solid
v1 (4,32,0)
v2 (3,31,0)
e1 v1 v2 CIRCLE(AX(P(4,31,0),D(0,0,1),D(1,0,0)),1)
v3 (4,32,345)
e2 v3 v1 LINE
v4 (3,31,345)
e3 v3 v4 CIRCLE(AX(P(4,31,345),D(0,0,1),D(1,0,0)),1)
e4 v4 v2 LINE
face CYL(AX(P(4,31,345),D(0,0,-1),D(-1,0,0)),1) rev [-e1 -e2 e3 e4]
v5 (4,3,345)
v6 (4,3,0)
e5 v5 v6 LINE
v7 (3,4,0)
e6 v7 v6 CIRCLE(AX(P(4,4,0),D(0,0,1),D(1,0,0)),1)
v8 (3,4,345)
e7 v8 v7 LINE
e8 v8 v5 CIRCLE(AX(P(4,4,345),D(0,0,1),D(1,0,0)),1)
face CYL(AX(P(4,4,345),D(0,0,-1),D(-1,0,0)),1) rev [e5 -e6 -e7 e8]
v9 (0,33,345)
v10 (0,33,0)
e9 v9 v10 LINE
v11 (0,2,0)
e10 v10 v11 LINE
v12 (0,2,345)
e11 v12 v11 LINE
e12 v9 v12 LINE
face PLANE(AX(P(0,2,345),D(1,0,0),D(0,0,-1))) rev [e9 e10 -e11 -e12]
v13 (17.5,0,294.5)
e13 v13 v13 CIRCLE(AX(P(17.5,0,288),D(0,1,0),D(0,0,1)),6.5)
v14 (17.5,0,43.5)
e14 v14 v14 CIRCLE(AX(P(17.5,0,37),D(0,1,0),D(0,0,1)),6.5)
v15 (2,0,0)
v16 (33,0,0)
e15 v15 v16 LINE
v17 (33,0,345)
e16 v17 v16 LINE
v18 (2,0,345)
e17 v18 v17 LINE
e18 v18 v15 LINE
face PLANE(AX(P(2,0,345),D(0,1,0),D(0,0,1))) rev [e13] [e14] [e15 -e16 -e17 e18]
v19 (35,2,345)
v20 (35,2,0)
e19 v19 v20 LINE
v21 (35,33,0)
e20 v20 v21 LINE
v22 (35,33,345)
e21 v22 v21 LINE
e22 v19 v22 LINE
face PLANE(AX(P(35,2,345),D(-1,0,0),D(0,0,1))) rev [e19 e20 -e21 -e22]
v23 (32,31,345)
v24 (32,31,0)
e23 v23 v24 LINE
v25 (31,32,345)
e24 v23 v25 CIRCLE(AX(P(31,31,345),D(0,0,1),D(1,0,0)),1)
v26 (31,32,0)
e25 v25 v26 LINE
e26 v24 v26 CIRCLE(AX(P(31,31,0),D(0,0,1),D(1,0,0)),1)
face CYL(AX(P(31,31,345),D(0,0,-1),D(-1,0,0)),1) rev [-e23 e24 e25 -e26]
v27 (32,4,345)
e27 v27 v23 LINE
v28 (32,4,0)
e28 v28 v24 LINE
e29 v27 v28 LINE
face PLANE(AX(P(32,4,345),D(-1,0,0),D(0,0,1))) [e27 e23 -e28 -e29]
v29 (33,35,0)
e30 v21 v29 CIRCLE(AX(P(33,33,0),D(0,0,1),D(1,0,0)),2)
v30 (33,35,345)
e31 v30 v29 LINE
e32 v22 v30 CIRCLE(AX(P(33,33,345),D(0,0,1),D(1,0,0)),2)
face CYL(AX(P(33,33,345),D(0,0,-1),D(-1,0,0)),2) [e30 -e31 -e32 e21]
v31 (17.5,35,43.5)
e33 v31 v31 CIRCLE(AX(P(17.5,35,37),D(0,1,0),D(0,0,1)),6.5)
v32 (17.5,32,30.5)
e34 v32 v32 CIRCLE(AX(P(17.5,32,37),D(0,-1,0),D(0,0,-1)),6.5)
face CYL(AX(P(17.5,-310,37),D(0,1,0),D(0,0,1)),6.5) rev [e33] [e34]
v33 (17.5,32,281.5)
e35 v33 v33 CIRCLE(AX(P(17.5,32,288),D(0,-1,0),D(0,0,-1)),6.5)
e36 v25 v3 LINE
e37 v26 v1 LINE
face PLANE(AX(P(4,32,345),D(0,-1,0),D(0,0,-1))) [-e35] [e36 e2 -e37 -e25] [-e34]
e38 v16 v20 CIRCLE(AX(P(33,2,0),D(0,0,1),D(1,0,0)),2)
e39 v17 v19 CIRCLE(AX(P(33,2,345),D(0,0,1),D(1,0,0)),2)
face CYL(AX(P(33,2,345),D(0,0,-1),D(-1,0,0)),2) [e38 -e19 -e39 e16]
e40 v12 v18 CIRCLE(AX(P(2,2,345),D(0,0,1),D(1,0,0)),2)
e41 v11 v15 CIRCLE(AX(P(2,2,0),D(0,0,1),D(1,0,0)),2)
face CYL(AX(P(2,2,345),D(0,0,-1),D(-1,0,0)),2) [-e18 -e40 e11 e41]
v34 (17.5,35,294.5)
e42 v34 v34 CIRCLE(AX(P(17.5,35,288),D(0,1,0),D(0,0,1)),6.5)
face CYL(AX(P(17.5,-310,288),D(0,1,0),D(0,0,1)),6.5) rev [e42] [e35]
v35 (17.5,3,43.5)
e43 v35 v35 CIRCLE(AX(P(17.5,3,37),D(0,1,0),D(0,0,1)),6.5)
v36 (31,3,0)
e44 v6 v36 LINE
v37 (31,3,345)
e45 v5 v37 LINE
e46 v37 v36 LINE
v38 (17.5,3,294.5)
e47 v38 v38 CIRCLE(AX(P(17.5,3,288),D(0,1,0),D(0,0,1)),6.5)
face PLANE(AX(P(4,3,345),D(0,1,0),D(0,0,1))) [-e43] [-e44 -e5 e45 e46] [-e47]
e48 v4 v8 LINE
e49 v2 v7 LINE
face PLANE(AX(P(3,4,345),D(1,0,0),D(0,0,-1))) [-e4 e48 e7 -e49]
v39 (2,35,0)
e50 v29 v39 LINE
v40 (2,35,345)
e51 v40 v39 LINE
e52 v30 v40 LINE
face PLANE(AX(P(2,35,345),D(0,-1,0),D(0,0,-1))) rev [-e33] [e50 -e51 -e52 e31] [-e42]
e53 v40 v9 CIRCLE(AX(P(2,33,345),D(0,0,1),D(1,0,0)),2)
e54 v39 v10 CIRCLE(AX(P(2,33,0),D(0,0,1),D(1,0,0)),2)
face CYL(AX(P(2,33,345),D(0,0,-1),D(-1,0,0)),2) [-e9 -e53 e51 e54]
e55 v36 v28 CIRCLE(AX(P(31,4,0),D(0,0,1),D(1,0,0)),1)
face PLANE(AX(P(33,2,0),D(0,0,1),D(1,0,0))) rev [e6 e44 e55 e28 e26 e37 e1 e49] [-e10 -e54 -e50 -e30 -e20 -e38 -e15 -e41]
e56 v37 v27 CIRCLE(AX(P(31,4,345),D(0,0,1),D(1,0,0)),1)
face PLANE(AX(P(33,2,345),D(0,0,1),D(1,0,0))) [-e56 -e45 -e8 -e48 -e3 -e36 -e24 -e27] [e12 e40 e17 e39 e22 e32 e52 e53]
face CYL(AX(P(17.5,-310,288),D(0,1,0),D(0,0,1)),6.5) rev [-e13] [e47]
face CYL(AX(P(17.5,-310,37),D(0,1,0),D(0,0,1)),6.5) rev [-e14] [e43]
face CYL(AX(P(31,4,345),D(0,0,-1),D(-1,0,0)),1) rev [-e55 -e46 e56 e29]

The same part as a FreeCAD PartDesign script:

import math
import FreeCAD as App
import Part
import Sketcher

V = App.Vector

doc = App.newDocument("Part")
body = doc.addObject("PartDesign::Body", "Body")

# Sketch on XY plane
sketch1 = body.newObject("Sketcher::SketchObject", "Sketch")
sketch1.AttachmentSupport = (doc.getObject("XY_Plane"), [""])
sketch1.MapMode = "FlatFace"
sketch1.addGeometry([
    Part.LineSegment(V(2, 0, 0), V(33, 0, 0)),  # 0
    Part.ArcOfCircle(Part.Circle(V(33, 2, 0), V(0, 0, 1), 2), math.radians(-90), math.radians(0)),  # 1
    Part.LineSegment(V(35, 2, 0), V(35, 33, 0)),  # 2
    Part.ArcOfCircle(Part.Circle(V(33, 33, 0), V(0, 0, 1), 2), math.radians(0), math.radians(90)),  # 3
    Part.LineSegment(V(33, 35, 0), V(2, 35, 0)),  # 4
    Part.ArcOfCircle(Part.Circle(V(2, 33, 0), V(0, 0, 1), 2), math.radians(90), math.radians(180)),  # 5
    Part.LineSegment(V(0, 33, 0), V(0, 2, 0)),  # 6
    Part.ArcOfCircle(Part.Circle(V(2, 2, 0), V(0, 0, 1), 2), math.radians(-180), math.radians(-90)),  # 7
    Part.LineSegment(V(31, 3, 0), V(4, 3, 0)),  # 8
    Part.ArcOfCircle(Part.Circle(V(4, 4, 0), V(0, 0, 1), 1), math.radians(-180), math.radians(-90)),  # 9
    Part.LineSegment(V(3, 4, 0), V(3, 31, 0)),  # 10
    Part.ArcOfCircle(Part.Circle(V(4, 31, 0), V(0, 0, 1), 1), math.radians(90), math.radians(180)),  # 11
    Part.LineSegment(V(4, 32, 0), V(31, 32, 0)),  # 12
    Part.ArcOfCircle(Part.Circle(V(31, 31, 0), V(0, 0, 1), 1), math.radians(0), math.radians(90)),  # 13
    Part.LineSegment(V(32, 31, 0), V(32, 4, 0)),  # 14
    Part.ArcOfCircle(Part.Circle(V(31, 4, 0), V(0, 0, 1), 1), math.radians(-90), math.radians(0)),  # 15
], False)
sketch1.addConstraint([
    Sketcher.Constraint("Tangent", 0, 2, 1, 1),
    Sketcher.Constraint("Tangent", 1, 2, 2, 1),
    Sketcher.Constraint("Tangent", 2, 2, 3, 1),
    Sketcher.Constraint("Tangent", 3, 2, 4, 1),
    Sketcher.Constraint("Tangent", 4, 2, 5, 1),
    Sketcher.Constraint("Tangent", 5, 2, 6, 1),
    Sketcher.Constraint("Tangent", 6, 2, 7, 1),
    Sketcher.Constraint("Tangent", 7, 2, 0, 1),
    Sketcher.Constraint("Tangent", 8, 2, 9, 2),
    Sketcher.Constraint("Tangent", 9, 1, 10, 1),
    Sketcher.Constraint("Tangent", 10, 2, 11, 2),
    Sketcher.Constraint("Tangent", 11, 1, 12, 1),
    Sketcher.Constraint("Tangent", 12, 2, 13, 2),
    Sketcher.Constraint("Tangent", 13, 1, 14, 1),
    Sketcher.Constraint("Tangent", 14, 2, 15, 2),
    Sketcher.Constraint("Tangent", 15, 1, 8, 1),
    Sketcher.Constraint("Horizontal", 0),
    Sketcher.Constraint("Vertical", 2),
    Sketcher.Constraint("Horizontal", 4),
    Sketcher.Constraint("Vertical", 6),
    Sketcher.Constraint("Horizontal", 8),
    Sketcher.Constraint("Vertical", 10),
    Sketcher.Constraint("Horizontal", 12),
    Sketcher.Constraint("Vertical", 14),
    Sketcher.Constraint("Equal", 1, 3),
    Sketcher.Constraint("Equal", 3, 5),
    Sketcher.Constraint("Equal", 5, 7),
    Sketcher.Constraint("Equal", 9, 11),
    Sketcher.Constraint("Equal", 11, 13),
    Sketcher.Constraint("Equal", 13, 15),
    Sketcher.Constraint("PointOnObject", 0, 2, -1),
    Sketcher.Constraint("PointOnObject", 5, 2, -2),
    Sketcher.Constraint("Equal", 4, 2),
    Sketcher.Constraint("Equal", 12, 10),
    Sketcher.Constraint("Radius", 1, 2.0),
    Sketcher.Constraint("Radius", 9, 1.0),
    Sketcher.Constraint("DistanceX", 0, 1, 0, 2, 31.0),
    Sketcher.Constraint("DistanceX", 8, 2, 8, 1, 27.0),
    Sketcher.Constraint("DistanceX", -1, 1, 9, 3, 4.0),
    Sketcher.Constraint("DistanceY", -1, 1, 9, 3, 4.0),
])
pad1 = body.newObject("PartDesign::Pad", "Pad")
pad1.Profile = sketch1
pad1.Length = 345

# Sketch on XZ plane
sketch2 = body.newObject("Sketcher::SketchObject", "Sketch001")
sketch2.AttachmentSupport = (doc.getObject("XZ_Plane"), [""])
sketch2.MapMode = "FlatFace"
sketch2.AttachmentOffset = App.Placement(V(0, 0, -35), App.Rotation())
sketch2.addGeometry([
    Part.Circle(V(18, 288, 0), V(0, 0, 1), 6),
    Part.Circle(V(18, 37, 0), V(0, 0, 1), 6),
], False)
sketch2.addConstraint([
    Sketcher.Constraint("Equal", 0, 1),
    Sketcher.Constraint("Vertical", 0, 3, 1, 3),
    Sketcher.Constraint("Diameter", 0, 13.0),
    Sketcher.Constraint("DistanceY", -1, 1, 0, 3, 288.0),
    Sketcher.Constraint("DistanceY", -1, 1, 1, 3, 37.0),
    Sketcher.Constraint("DistanceX", -1, 1, 0, 3, 17.5),
])
pocket1 = body.newObject("PartDesign::Pocket", "Pocket")
pocket1.Profile = sketch2
pocket1.Length = 345
pocket1.Reversed = True

doc.recompute()
